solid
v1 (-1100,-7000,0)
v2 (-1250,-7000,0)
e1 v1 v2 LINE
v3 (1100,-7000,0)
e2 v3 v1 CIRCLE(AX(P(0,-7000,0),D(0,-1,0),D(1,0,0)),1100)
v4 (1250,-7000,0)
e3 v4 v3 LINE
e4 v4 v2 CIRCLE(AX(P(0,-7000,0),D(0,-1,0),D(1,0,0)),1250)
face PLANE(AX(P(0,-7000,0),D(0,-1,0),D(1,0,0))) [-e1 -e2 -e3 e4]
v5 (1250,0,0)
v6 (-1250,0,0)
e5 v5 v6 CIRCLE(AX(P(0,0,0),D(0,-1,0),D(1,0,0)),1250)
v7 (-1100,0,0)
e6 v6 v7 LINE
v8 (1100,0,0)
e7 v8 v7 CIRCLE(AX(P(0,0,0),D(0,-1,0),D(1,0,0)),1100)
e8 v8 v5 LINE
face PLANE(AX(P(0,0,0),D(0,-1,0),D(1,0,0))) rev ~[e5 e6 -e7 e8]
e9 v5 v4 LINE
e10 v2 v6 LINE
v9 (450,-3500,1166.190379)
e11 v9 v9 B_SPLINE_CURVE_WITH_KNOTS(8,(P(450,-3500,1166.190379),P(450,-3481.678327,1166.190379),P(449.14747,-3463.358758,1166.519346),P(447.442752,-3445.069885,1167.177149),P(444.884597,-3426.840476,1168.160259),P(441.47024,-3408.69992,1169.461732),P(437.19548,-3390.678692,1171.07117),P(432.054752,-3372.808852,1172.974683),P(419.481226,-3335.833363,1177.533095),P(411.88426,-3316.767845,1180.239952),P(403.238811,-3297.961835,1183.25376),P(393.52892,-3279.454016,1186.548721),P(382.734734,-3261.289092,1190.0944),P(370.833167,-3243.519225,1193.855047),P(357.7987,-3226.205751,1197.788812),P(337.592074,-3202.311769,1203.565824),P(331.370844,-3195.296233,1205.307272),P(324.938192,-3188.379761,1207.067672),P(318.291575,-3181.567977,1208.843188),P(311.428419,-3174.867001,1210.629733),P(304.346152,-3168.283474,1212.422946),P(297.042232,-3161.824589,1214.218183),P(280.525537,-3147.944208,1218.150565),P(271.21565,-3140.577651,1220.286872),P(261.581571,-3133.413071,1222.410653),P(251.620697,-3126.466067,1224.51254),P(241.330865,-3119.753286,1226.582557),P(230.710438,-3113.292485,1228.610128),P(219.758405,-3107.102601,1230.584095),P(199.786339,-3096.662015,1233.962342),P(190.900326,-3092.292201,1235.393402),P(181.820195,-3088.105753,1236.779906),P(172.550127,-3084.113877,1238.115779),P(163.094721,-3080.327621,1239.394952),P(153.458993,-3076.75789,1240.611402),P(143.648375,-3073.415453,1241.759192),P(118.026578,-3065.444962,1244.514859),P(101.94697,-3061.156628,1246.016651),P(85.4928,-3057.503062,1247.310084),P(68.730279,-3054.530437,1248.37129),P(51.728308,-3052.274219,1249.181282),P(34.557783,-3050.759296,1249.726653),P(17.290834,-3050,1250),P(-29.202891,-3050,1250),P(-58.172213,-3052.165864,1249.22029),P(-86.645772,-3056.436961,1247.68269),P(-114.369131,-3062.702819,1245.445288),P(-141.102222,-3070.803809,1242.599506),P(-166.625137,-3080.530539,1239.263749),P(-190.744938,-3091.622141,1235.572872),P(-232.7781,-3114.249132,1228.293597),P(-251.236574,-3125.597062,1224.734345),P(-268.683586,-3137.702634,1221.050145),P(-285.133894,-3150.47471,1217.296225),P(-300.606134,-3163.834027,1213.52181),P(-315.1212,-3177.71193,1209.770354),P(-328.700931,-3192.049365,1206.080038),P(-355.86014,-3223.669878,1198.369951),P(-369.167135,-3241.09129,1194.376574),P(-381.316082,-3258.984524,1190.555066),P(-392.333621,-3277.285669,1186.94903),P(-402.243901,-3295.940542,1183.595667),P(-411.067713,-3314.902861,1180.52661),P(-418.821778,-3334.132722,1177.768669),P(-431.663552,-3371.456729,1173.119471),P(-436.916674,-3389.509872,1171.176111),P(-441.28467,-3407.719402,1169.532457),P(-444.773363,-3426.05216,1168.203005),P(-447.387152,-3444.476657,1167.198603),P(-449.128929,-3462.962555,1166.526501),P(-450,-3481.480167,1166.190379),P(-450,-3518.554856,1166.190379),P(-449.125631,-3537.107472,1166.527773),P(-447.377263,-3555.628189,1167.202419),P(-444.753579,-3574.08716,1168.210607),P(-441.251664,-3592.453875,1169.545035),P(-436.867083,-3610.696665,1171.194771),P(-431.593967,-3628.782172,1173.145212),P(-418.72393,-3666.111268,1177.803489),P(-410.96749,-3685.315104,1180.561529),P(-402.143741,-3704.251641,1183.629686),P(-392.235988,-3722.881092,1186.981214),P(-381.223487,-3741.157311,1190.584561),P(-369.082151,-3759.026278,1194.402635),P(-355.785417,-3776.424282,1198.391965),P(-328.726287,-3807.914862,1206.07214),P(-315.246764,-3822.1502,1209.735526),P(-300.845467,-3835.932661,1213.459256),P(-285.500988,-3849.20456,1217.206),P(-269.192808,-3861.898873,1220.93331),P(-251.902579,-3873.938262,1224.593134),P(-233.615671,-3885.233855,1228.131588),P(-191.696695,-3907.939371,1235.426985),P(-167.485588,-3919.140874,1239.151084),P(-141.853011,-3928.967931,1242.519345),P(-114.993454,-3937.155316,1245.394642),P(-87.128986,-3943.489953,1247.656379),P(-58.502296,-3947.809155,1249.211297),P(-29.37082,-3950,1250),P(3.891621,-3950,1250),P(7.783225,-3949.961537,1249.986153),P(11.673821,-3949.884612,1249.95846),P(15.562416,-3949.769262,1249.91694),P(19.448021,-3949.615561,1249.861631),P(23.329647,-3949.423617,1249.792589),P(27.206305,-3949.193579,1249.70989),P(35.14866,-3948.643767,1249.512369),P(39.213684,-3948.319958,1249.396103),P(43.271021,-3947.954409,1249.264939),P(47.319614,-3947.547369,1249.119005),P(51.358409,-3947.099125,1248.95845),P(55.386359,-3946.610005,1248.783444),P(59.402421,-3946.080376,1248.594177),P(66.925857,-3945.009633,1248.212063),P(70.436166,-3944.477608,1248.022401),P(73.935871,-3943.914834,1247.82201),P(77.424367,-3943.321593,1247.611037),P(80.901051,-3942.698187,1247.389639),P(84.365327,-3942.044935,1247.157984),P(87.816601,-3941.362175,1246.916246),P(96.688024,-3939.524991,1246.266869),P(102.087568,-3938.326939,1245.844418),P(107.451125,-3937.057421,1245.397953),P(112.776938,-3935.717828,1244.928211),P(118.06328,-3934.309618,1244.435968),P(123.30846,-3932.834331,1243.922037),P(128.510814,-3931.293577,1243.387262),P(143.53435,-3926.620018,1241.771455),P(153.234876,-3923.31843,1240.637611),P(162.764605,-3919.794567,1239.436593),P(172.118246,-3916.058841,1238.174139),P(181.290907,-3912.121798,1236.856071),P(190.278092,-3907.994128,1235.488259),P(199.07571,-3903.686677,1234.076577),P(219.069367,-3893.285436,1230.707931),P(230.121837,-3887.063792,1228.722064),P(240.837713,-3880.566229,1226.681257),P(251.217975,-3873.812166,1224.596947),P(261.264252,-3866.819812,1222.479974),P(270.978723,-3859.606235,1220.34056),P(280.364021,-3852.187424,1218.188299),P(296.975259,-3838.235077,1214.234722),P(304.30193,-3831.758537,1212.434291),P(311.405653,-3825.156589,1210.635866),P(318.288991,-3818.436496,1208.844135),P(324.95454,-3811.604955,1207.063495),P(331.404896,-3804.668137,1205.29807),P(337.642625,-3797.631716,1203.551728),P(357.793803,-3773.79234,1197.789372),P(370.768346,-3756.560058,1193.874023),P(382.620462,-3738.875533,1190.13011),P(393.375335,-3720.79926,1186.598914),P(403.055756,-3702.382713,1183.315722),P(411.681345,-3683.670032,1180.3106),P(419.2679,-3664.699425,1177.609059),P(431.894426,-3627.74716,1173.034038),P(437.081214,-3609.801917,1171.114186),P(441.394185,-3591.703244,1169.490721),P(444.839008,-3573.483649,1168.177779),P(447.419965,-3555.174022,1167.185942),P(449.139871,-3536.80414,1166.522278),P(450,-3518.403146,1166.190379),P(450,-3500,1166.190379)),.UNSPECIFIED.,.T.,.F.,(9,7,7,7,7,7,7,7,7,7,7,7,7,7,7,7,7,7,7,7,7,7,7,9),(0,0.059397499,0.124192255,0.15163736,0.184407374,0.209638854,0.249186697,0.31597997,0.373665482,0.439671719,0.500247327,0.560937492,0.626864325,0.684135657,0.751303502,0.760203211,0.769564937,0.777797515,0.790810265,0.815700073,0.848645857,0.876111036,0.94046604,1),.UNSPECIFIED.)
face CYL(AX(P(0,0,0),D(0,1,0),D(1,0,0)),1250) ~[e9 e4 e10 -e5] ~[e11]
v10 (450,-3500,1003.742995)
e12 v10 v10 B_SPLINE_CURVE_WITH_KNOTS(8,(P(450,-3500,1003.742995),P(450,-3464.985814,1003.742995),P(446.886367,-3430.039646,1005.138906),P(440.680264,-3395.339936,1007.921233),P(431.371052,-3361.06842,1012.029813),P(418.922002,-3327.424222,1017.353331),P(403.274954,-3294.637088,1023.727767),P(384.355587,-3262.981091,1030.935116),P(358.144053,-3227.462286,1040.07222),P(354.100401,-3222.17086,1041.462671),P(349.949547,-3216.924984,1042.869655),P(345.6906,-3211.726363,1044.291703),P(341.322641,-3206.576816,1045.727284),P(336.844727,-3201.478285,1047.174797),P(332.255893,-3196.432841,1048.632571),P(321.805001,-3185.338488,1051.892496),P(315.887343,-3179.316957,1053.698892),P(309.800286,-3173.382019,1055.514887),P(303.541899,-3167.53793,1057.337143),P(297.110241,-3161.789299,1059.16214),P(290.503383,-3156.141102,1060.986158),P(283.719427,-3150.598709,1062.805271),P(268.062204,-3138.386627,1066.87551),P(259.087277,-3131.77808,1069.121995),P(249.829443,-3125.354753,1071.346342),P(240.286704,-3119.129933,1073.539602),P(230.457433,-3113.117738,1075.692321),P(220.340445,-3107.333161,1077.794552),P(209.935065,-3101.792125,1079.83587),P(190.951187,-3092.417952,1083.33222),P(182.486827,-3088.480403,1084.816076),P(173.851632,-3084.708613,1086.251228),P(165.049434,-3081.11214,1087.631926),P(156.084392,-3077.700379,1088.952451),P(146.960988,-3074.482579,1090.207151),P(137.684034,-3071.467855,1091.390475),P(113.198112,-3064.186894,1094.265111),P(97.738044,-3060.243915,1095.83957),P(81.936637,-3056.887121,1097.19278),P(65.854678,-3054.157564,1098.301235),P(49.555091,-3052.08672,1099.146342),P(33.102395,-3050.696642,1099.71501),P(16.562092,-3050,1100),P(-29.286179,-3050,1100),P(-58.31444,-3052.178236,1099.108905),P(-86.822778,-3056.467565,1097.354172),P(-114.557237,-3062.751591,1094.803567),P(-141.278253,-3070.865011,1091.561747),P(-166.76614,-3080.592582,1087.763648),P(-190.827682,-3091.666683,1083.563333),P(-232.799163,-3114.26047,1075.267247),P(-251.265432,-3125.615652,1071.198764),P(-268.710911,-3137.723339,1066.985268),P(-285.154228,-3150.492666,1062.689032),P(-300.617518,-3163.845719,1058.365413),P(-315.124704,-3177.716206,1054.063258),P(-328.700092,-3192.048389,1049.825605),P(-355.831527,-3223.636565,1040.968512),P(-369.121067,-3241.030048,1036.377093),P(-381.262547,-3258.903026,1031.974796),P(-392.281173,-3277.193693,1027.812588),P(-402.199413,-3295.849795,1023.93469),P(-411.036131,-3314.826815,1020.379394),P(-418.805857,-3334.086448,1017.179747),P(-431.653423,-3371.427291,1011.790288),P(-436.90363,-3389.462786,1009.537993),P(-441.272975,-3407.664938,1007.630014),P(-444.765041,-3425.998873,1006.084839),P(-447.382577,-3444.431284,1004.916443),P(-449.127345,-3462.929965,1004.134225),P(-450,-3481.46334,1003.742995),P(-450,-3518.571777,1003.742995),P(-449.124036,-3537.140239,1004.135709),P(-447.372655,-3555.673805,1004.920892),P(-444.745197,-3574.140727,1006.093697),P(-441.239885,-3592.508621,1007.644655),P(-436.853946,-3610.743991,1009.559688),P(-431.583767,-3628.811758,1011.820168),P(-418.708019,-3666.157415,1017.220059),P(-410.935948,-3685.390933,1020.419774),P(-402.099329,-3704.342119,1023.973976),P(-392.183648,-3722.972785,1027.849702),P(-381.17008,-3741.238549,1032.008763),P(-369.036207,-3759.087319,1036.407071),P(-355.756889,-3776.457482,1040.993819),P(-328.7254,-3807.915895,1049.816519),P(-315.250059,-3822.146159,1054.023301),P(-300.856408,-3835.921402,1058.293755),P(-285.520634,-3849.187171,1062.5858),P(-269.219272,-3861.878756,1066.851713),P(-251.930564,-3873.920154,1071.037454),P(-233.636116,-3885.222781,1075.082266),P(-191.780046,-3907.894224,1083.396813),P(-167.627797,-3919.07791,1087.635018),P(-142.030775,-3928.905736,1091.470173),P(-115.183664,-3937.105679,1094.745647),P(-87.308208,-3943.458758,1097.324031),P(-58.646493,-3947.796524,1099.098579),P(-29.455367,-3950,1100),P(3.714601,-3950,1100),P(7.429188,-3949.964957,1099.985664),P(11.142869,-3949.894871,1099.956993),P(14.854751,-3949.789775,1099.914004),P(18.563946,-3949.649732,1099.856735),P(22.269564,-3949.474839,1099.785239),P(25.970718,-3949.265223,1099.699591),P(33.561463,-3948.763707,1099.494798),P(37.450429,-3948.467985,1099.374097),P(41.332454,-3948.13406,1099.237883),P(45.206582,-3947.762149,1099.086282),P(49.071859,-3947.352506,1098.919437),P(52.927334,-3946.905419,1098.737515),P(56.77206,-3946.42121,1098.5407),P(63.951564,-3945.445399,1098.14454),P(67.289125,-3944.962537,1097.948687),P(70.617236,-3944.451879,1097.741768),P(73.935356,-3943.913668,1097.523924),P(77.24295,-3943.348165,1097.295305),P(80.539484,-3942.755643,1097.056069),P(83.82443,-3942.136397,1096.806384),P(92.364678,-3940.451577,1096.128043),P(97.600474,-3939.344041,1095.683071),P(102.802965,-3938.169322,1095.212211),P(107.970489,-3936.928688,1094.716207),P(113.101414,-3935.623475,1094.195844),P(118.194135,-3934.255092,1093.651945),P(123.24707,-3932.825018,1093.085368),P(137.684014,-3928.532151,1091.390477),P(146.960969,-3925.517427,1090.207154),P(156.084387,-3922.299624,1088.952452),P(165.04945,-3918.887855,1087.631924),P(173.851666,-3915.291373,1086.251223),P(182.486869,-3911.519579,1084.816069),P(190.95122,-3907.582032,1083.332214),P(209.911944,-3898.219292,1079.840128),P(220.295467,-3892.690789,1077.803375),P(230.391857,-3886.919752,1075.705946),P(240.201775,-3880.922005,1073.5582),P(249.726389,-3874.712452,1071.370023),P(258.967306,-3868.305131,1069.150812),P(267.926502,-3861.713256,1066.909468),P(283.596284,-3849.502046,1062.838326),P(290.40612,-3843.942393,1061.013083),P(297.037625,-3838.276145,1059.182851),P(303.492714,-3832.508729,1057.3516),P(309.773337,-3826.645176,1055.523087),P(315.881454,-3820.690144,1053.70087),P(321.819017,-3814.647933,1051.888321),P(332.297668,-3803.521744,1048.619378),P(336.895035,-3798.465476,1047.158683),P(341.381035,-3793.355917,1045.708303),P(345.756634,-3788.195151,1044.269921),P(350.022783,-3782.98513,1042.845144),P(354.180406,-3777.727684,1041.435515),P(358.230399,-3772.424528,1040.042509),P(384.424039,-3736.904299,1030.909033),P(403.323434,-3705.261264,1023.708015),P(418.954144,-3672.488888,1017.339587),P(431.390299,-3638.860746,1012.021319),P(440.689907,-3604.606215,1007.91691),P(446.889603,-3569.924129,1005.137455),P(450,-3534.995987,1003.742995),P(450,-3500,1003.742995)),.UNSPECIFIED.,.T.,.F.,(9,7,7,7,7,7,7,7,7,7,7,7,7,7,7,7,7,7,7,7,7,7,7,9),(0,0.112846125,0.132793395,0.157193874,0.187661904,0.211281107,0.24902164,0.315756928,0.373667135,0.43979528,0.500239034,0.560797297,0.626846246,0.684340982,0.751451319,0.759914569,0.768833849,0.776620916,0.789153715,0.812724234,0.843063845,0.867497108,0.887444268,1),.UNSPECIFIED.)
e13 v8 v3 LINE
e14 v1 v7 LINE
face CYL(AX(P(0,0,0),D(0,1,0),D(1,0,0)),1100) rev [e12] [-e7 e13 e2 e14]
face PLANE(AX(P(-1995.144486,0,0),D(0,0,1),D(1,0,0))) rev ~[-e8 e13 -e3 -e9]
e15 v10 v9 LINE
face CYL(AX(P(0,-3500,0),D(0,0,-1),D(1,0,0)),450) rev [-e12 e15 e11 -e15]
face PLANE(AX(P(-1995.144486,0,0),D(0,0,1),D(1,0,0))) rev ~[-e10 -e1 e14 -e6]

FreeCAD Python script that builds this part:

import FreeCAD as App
import Part
import Sketcher
Q = App.Units.Quantity


def add_polygon(sketch, points):
    """Adds a closed chain of lines whose ends are joined by coincident constraints."""
    first, n = sketch.GeometryCount, len(points)
    for a, b in zip(points, points[1:] + points[:1]):
        sketch.addGeometry(Part.LineSegment(App.Vector(*a, 0), App.Vector(*b, 0)), False)
    for i in range(n):
        sketch.addConstraint(Sketcher.Constraint("Coincident", first + i, 2, first + (i + 1) % n, 1))

doc = App.newDocument("Part")
body = doc.addObject("PartDesign::Body", "Body")

# Sketch on XZ plane
sketch1 = body.newObject("Sketcher::SketchObject", "Sketch")
sketch1.AttachmentSupport = (doc.getObject("XZ_Plane"), [""])
sketch1.MapMode = "FlatFace"
sketch1.addGeometry([
    Part.Circle(App.Vector(0, 0, 0), App.Vector(0, 0, 1), 1250),
    Part.Circle(App.Vector(0, 0, 0), App.Vector(0, 0, 1), 1100),
], False)
sketch1.addConstraint([
    Sketcher.Constraint("Coincident", 0, 3, -1, 1),
    Sketcher.Constraint("Coincident", 1, 3, -1, 1),
    Sketcher.Constraint("Diameter", 0, Q("2500 mm")),
    Sketcher.Constraint("Diameter", 1, Q("2200 mm")),
])
pad1 = body.newObject("PartDesign::Pad", "Pad")
pad1.Profile = sketch1
pad1.Length = 7000

# Sketch on XZ plane
sketch2 = body.newObject("Sketcher::SketchObject", "Sketch001")
sketch2.AttachmentSupport = (doc.getObject("XZ_Plane"), [""])
sketch2.MapMode = "FlatFace"
add_polygon(sketch2, [(-1995, 0), (-1995, -1751), (2355, -1751), (2355, 0)])  # lines 0-3
sketch2.addConstraint([
    Sketcher.Constraint("Vertical", 0),
    Sketcher.Constraint("Horizontal", 1),
    Sketcher.Constraint("Vertical", 2),
    Sketcher.Constraint("Horizontal", 3),
    Sketcher.Constraint("PointOnObject", 2, 2, -1),
    Sketcher.Constraint("DistanceX", -1, 1, 1, 2, Q("2355.407 mm")),
    Sketcher.Constraint("DistanceY", 0, 2, 0, 1, Q("1751.117468 mm")),
    Sketcher.Constraint("DistanceX", 1, 1, 1, 2, Q("4350.551486 mm")),
])
pocket1 = body.newObject("PartDesign::Pocket", "Pocket")
pocket1.Profile = sketch2
pocket1.Length = 8000
pocket1.Reversed = True

# Sketch on XY plane
sketch3 = body.newObject("Sketcher::SketchObject", "Sketch002")
sketch3.AttachmentSupport = (doc.getObject("XY_Plane"), [""])
sketch3.MapMode = "FlatFace"
sketch3.addGeometry(Part.Circle(App.Vector(0, -3500, 0), App.Vector(0, 0, 1), 450), False)
sketch3.addConstraint([
    Sketcher.Constraint("PointOnObject", 0, 3, -2),
    Sketcher.Constraint("Diameter", 0, Q("900 mm")),
    Sketcher.Constraint("DistanceY", 0, 3, -1, 1, Q("3500 mm")),
])
pocket2 = body.newObject("PartDesign::Pocket", "Pocket001")
pocket2.Profile = sketch3
pocket2.Length = 10000
pocket2.Reversed = True

doc.recompute()
